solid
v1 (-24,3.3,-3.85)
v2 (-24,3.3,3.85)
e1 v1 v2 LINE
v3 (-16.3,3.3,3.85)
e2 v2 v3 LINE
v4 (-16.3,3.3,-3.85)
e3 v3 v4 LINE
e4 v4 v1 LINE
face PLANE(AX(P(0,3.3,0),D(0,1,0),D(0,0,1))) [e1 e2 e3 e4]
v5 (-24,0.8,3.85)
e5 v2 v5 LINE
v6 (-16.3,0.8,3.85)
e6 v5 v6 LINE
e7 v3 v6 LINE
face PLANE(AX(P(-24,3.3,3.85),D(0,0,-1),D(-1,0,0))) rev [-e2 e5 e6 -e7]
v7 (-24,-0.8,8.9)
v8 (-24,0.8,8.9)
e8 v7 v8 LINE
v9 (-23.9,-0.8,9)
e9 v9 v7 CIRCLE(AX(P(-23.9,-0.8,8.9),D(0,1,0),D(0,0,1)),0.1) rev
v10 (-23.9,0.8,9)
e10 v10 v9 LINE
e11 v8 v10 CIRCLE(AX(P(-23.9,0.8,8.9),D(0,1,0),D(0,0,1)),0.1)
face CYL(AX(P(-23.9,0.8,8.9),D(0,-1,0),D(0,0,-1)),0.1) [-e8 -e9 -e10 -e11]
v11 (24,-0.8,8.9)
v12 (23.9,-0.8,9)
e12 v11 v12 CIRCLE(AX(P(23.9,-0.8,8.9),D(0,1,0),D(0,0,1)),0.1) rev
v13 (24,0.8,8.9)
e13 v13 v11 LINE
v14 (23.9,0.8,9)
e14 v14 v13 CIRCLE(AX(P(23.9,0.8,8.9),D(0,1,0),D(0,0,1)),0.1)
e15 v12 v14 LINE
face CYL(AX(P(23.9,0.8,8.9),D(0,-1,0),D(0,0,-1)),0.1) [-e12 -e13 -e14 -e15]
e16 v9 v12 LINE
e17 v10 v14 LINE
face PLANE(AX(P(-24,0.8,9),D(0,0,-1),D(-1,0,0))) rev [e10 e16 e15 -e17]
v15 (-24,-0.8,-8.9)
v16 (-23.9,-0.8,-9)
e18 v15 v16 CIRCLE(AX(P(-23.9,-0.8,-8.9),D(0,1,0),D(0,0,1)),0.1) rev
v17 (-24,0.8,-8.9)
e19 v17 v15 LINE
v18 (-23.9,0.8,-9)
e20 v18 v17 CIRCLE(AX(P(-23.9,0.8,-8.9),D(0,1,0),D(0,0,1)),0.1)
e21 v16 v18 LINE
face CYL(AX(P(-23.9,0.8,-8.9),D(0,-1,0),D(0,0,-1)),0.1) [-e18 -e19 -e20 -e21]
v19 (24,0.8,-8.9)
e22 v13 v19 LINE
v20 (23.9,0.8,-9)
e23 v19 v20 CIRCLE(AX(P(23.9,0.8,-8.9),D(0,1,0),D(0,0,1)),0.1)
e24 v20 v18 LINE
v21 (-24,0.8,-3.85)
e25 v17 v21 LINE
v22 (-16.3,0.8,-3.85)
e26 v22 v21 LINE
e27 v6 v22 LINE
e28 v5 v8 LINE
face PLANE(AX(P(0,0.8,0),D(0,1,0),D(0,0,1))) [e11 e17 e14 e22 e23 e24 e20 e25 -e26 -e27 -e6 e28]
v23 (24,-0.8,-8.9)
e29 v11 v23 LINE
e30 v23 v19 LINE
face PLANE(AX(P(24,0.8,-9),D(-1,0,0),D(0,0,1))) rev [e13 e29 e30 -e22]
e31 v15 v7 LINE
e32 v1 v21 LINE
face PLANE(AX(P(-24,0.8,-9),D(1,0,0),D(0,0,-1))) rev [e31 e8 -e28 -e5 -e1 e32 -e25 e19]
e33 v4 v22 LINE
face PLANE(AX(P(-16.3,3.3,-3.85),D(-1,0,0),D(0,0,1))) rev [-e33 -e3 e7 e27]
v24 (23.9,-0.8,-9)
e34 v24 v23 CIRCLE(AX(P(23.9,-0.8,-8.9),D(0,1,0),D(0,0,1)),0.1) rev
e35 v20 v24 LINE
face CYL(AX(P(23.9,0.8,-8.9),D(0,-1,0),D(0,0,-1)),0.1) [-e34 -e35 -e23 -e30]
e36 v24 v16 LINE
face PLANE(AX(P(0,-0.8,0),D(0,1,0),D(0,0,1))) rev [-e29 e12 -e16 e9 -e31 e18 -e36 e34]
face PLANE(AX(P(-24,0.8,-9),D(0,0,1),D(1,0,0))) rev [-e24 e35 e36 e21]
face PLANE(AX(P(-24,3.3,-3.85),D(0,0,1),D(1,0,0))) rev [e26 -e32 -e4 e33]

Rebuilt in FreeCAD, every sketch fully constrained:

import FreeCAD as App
import Part
import Sketcher
from FreeCAD import Vector


def edges_at(feature, points):
    """Names of the edges that pass closest to the given points."""
    edges = feature.Shape.Edges
    near = lambda p: min(range(len(edges)), key=lambda i: edges[i].distToShape(Part.Vertex(*p))[0])
    return sorted({f"Edge{near(p) + 1}" for p in points})


def add_polygon(sketch, points):
    """Adds a closed chain of lines whose ends are joined by coincident constraints."""
    first, n = sketch.GeometryCount, len(points)
    for a, b in zip(points, points[1:] + points[:1]):
        sketch.addGeometry(Part.LineSegment(App.Vector(*a, 0), App.Vector(*b, 0)), False)
    for i in range(n):
        sketch.addConstraint(Sketcher.Constraint("Coincident", first + i, 2, first + (i + 1) % n, 1))

doc = App.newDocument("Part")
body = doc.addObject("PartDesign::Body", "Body")

# Sketch on XZ plane
sketch1 = body.newObject("Sketcher::SketchObject", "Sketch")
sketch1.AttachmentSupport = (doc.getObject("XZ_Plane"), [""])
sketch1.MapMode = "FlatFace"
add_polygon(sketch1, [(-24, -9), (-24, 9), (24, 9), (24, -9)])  # lines 0-3
sketch1.addConstraint([
    Sketcher.Constraint("Vertical", 0),
    Sketcher.Constraint("Horizontal", 1),
    Sketcher.Constraint("Vertical", 2),
    Sketcher.Constraint("Horizontal", 3),
    Sketcher.Constraint("Symmetric", 0, 2, 2, 2, -1, 1),
    Sketcher.Constraint("DistanceX", 1, 1, 1, 2, 48.0),
    Sketcher.Constraint("DistanceY", 0, 1, 0, 2, 18.0),
])
pad1 = body.newObject("PartDesign::Pad", "Pad")
pad1.Profile = sketch1
pad1.Length = 1.6
pad1.Midplane = True
doc.recompute()

fillet = body.newObject("PartDesign::Fillet", "Fillet")
fillet.Base = (pad1, edges_at(pad1, [
    (24, 0, 9),
    (-24, 0, 9),
    (-24, 0, -9),
    (24, 0, -9),
]))
fillet.Radius = 0.1

# Sketch on XZ plane
sketch2 = body.newObject("Sketcher::SketchObject", "Sketch001")
sketch2.AttachmentSupport = (doc.getObject("XZ_Plane"), [""])
sketch2.MapMode = "FlatFace"
sketch2.AttachmentOffset = App.Placement(Vector(0, 0, -0.8), App.Rotation())
add_polygon(sketch2, [(-24, -4), (-24, 4), (-16, 4), (-16, -4)])  # lines 0-3
sketch2.addConstraint([
    Sketcher.Constraint("Vertical", 0),
    Sketcher.Constraint("Horizontal", 1),
    Sketcher.Constraint("Vertical", 2),
    Sketcher.Constraint("Horizontal", 3),
    Sketcher.Constraint("Equal", 3, 0),
    Sketcher.Constraint("DistanceX", 1, 1, 1, 2, 7.7),
    Sketcher.Constraint("DistanceX", 0, 2, -1, 1, 24.0),
    Sketcher.Constraint("DistanceY", -1, 1, 0, 2, 3.85),
])
pad2 = body.newObject("PartDesign::Pad", "Pad001")
pad2.Profile = sketch2
pad2.Length = 2.5
pad2.Reversed = True

doc.recompute()
